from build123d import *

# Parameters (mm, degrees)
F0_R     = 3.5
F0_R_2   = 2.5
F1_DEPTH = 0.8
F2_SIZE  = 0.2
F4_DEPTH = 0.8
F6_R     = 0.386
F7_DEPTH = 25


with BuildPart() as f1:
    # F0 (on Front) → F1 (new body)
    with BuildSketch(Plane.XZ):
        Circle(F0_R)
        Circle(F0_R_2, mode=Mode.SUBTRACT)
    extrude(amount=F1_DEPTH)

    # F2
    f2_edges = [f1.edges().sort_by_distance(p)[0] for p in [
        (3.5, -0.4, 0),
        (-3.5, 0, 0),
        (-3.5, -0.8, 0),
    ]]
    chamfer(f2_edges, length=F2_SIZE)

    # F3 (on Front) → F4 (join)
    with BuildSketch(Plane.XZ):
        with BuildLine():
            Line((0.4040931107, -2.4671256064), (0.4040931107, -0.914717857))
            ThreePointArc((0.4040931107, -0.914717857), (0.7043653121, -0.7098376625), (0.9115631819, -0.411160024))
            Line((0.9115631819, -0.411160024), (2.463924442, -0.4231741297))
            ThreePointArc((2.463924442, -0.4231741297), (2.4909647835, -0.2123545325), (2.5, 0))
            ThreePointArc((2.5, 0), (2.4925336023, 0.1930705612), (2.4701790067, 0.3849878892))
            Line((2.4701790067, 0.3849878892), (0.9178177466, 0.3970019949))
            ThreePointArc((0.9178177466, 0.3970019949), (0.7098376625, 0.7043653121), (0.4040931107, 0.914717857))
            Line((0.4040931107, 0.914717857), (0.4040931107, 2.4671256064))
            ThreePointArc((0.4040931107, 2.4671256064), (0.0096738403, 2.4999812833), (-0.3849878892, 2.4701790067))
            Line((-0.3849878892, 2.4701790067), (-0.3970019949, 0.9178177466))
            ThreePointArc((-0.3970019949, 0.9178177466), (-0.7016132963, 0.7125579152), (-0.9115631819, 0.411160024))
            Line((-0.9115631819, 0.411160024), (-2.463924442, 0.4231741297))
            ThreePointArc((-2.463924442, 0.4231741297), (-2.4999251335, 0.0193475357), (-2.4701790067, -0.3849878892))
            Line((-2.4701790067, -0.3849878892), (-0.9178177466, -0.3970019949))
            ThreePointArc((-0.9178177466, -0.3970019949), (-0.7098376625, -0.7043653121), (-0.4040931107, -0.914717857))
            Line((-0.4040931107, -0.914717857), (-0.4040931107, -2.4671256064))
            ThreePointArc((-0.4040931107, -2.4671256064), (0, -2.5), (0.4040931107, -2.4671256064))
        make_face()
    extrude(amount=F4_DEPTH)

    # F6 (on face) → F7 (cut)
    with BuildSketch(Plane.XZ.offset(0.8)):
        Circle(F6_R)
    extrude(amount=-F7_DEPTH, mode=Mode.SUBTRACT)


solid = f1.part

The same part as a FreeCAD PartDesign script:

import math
import FreeCAD as App
import Part
import Sketcher

V = App.Vector


def edges_at(feature, points):
    """Names of the edges that pass closest to the given points."""
    edges = feature.Shape.Edges
    near = lambda p: min(range(len(edges)), key=lambda i: edges[i].distToShape(Part.Vertex(*p))[0])
    return sorted({f"Edge{near(p) + 1}" for p in points})

doc = App.newDocument("Part")
body = doc.addObject("PartDesign::Body", "Body")

# Sketch on XZ plane
sketch1 = body.newObject("Sketcher::SketchObject", "Sketch")
sketch1.AttachmentSupport = (doc.getObject("XZ_Plane"), [""])
sketch1.MapMode = "FlatFace"
sketch1.addGeometry(Part.Circle(V(0, 0, 0), V(0, 0, 1), 3.5), False)
sketch1.addGeometry(Part.Circle(V(0, 0, 0), V(0, 0, 1), 2.5), False)
sketch1.addConstraint(Sketcher.Constraint("Coincident", 0, 3, -1, 1))
sketch1.addConstraint(Sketcher.Constraint("Coincident", 1, 3, -1, 1))
sketch1.addConstraint(Sketcher.Constraint("Diameter", 0, 7.0))
sketch1.addConstraint(Sketcher.Constraint("Diameter", 1, 5.0))
pad1 = body.newObject("PartDesign::Pad", "Pad")
pad1.Profile = sketch1
pad1.Length = 0.8
doc.recompute()

chamfer = body.newObject("PartDesign::Chamfer", "Chamfer")
chamfer.Base = (pad1, edges_at(pad1, [(3.5, -0.4, 0), (-3.5, 0, 0), (-3.5, -0.8, 0)]))
chamfer.Size = 0.2

# Sketch on XZ plane
sketch2 = body.newObject("Sketcher::SketchObject", "Sketch001")
sketch2.AttachmentSupport = (doc.getObject("XZ_Plane"), [""])
sketch2.MapMode = "FlatFace"
sketch2.addGeometry(Part.LineSegment(V(0.4, -2.47, 0), V(0.4, -0.91, 0)), False)
sketch2.addGeometry(Part.ArcOfCircle(Part.Circle(V(0, 0, 0), V(0, 0, 1), 1), math.radians(-66), math.radians(-24)), False)
sketch2.addGeometry(Part.LineSegment(V(0.91, -0.41, 0), V(2.46, -0.42, 0)), False)
sketch2.addGeometry(Part.ArcOfCircle(Part.Circle(V(0, 0, 0), V(0, 0, 1), 2.5), math.radians(-9.75), math.radians(0)), False)
sketch2.addGeometry(Part.ArcOfCircle(Part.Circle(V(0, 0, 0), V(0, 0, 1), 2.5), math.radians(0), math.radians(8.86)), False)
sketch2.addGeometry(Part.LineSegment(V(2.47, 0.38, 0), V(0.92, 0.4, 0)), False)
sketch2.addGeometry(Part.ArcOfCircle(Part.Circle(V(0, 0, 0), V(0, 0, 1), 1), math.radians(23), math.radians(66)), False)
sketch2.addGeometry(Part.LineSegment(V(0.4, 0.91, 0), V(0.4, 2.47, 0)), False)
sketch2.addGeometry(Part.ArcOfCircle(Part.Circle(V(0, 0, 0), V(0, 0, 1), 2.5), math.radians(80.7), math.radians(98.86)), False)
sketch2.addGeometry(Part.LineSegment(V(-0.38, 2.47, 0), V(-0.4, 0.92, 0)), False)
sketch2.addGeometry(Part.ArcOfCircle(Part.Circle(V(0, 0, 0), V(0, 0, 1), 1), math.radians(113), math.radians(156)), False)
sketch2.addGeometry(Part.LineSegment(V(-0.91, 0.41, 0), V(-2.46, 0.42, 0)), False)
sketch2.addGeometry(Part.ArcOfCircle(Part.Circle(V(0, 0, 0), V(0, 0, 1), 2.5), math.radians(170.25), math.radians(188.86)), False)
sketch2.addGeometry(Part.LineSegment(V(-2.47, -0.38, 0), V(-0.92, -0.4, 0)), False)
sketch2.addGeometry(Part.ArcOfCircle(Part.Circle(V(0, 0, 0), V(0, 0, 1), 1), math.radians(-157), math.radians(-114)), False)
sketch2.addGeometry(Part.LineSegment(V(-0.4, -0.91, 0), V(-0.4, -2.47, 0)), False)
sketch2.addGeometry(Part.ArcOfCircle(Part.Circle(V(0, 0, 0), V(0, 0, 1), 2.5), math.radians(-99.3), math.radians(-80.7)), False)
sketch2.addConstraint(Sketcher.Constraint("Coincident", 0, 2, 1, 1))
sketch2.addConstraint(Sketcher.Constraint("Coincident", 1, 2, 2, 1))
sketch2.addConstraint(Sketcher.Constraint("Coincident", 2, 2, 3, 1))
sketch2.addConstraint(Sketcher.Constraint("Tangent", 3, 2, 4, 1))
sketch2.addConstraint(Sketcher.Constraint("Coincident", 4, 2, 5, 1))
sketch2.addConstraint(Sketcher.Constraint("Coincident", 5, 2, 6, 1))
sketch2.addConstraint(Sketcher.Constraint("Coincident", 6, 2, 7, 1))
sketch2.addConstraint(Sketcher.Constraint("Coincident", 7, 2, 8, 1))
sketch2.addConstraint(Sketcher.Constraint("Coincident", 8, 2, 9, 1))
sketch2.addConstraint(Sketcher.Constraint("Coincident", 9, 2, 10, 1))
sketch2.addConstraint(Sketcher.Constraint("Coincident", 10, 2, 11, 1))
sketch2.addConstraint(Sketcher.Constraint("Coincident", 11, 2, 12, 1))
sketch2.addConstraint(Sketcher.Constraint("Coincident", 12, 2, 13, 1))
sketch2.addConstraint(Sketcher.Constraint("Coincident", 13, 2, 14, 1))
sketch2.addConstraint(Sketcher.Constraint("Coincident", 14, 2, 15, 1))
sketch2.addConstraint(Sketcher.Constraint("Coincident", 15, 2, 16, 1))
sketch2.addConstraint(Sketcher.Constraint("Coincident", 16, 2, 0, 1))
sketch2.addConstraint(Sketcher.Constraint("Vertical", 0))
sketch2.addConstraint(Sketcher.Constraint("Vertical", 7))
sketch2.addConstraint(Sketcher.Constraint("Vertical", 15))
sketch2.addConstraint(Sketcher.Constraint("Coincident", 1, 3, -1, 1))
sketch2.addConstraint(Sketcher.Constraint("Coincident", 3, 3, -1, 1))
sketch2.addConstraint(Sketcher.Constraint("Coincident", 6, 3, -1, 1))
sketch2.addConstraint(Sketcher.Constraint("Coincident", 8, 3, -1, 1))
sketch2.addConstraint(Sketcher.Constraint("Coincident", 10, 3, -1, 1))
sketch2.addConstraint(Sketcher.Constraint("Coincident", 12, 3, -1, 1))
sketch2.addConstraint(Sketcher.Constraint("Coincident", 14, 3, -1, 1))
sketch2.addConstraint(Sketcher.Constraint("Coincident", 16, 3, -1, 1))
sketch2.addConstraint(Sketcher.Constraint("Equal", 3, 4))
sketch2.addConstraint(Sketcher.Constraint("Equal", 1, 6))
sketch2.addConstraint(Sketcher.Constraint("Equal", 4, 8))
sketch2.addConstraint(Sketcher.Constraint("Equal", 6, 10))
sketch2.addConstraint(Sketcher.Constraint("Equal", 8, 12))
sketch2.addConstraint(Sketcher.Constraint("Equal", 10, 14))
sketch2.addConstraint(Sketcher.Constraint("Equal", 12, 16))
sketch2.addConstraint(Sketcher.Constraint("PointOnObject", 3, 2, -1))
sketch2.addConstraint(Sketcher.Constraint("Parallel", 2, 5))
sketch2.addConstraint(Sketcher.Constraint("Perpendicular", 5, 9))
sketch2.addConstraint(Sketcher.Constraint("Perpendicular", 9, 11))
sketch2.addConstraint(Sketcher.Constraint("Parallel", 11, 13))
sketch2.addConstraint(Sketcher.Constraint("Horizontal", 0, 2, 14, 2))
sketch2.addConstraint(Sketcher.Constraint("Vertical", 0, 2, 6, 2))
sketch2.addConstraint(Sketcher.Constraint("Equal", 2, 5))
sketch2.addConstraint(Sketcher.Constraint("Equal", 5, 9))
sketch2.addConstraint(Sketcher.Constraint("Equal", 9, 11))
sketch2.addConstraint(Sketcher.Constraint("Equal", 11, 13))
sketch2.addConstraint(Sketcher.Constraint("Radius", 1, 1.0))
sketch2.addConstraint(Sketcher.Constraint("Radius", 3, 2.5))
sketch2.addConstraint(Sketcher.Constraint("DistanceY", -1, 1, 5, 2, 0.397002))
sketch2.addConstraint(Sketcher.Constraint("DistanceY", 6, 2, 9, 2, 0.0031))
sketch2.addConstraint(Sketcher.Constraint("DistanceY", 1, 2, -1, 1, 0.41116))
pad2 = body.newObject("PartDesign::Pad", "Pad001")
pad2.Profile = sketch2
pad2.Length = 0.8

# Sketch on XZ plane
sketch3 = body.newObject("Sketcher::SketchObject", "Sketch002")
sketch3.AttachmentSupport = (doc.getObject("XZ_Plane"), [""])
sketch3.MapMode = "FlatFace"
sketch3.AttachmentOffset = App.Placement(V(0, 0, 0.8), App.Rotation())
sketch3.addGeometry(Part.Circle(V(0, 0, 0), V(0, 0, 1), 0.39), False)
sketch3.addConstraint(Sketcher.Constraint("Coincident", 0, 3, -1, 1))
sketch3.addConstraint(Sketcher.Constraint("Diameter", 0, 0.772))
pocket1 = body.newObject("PartDesign::Pocket", "Pocket")
pocket1.Profile = sketch3
pocket1.Length = 25

doc.recompute()
